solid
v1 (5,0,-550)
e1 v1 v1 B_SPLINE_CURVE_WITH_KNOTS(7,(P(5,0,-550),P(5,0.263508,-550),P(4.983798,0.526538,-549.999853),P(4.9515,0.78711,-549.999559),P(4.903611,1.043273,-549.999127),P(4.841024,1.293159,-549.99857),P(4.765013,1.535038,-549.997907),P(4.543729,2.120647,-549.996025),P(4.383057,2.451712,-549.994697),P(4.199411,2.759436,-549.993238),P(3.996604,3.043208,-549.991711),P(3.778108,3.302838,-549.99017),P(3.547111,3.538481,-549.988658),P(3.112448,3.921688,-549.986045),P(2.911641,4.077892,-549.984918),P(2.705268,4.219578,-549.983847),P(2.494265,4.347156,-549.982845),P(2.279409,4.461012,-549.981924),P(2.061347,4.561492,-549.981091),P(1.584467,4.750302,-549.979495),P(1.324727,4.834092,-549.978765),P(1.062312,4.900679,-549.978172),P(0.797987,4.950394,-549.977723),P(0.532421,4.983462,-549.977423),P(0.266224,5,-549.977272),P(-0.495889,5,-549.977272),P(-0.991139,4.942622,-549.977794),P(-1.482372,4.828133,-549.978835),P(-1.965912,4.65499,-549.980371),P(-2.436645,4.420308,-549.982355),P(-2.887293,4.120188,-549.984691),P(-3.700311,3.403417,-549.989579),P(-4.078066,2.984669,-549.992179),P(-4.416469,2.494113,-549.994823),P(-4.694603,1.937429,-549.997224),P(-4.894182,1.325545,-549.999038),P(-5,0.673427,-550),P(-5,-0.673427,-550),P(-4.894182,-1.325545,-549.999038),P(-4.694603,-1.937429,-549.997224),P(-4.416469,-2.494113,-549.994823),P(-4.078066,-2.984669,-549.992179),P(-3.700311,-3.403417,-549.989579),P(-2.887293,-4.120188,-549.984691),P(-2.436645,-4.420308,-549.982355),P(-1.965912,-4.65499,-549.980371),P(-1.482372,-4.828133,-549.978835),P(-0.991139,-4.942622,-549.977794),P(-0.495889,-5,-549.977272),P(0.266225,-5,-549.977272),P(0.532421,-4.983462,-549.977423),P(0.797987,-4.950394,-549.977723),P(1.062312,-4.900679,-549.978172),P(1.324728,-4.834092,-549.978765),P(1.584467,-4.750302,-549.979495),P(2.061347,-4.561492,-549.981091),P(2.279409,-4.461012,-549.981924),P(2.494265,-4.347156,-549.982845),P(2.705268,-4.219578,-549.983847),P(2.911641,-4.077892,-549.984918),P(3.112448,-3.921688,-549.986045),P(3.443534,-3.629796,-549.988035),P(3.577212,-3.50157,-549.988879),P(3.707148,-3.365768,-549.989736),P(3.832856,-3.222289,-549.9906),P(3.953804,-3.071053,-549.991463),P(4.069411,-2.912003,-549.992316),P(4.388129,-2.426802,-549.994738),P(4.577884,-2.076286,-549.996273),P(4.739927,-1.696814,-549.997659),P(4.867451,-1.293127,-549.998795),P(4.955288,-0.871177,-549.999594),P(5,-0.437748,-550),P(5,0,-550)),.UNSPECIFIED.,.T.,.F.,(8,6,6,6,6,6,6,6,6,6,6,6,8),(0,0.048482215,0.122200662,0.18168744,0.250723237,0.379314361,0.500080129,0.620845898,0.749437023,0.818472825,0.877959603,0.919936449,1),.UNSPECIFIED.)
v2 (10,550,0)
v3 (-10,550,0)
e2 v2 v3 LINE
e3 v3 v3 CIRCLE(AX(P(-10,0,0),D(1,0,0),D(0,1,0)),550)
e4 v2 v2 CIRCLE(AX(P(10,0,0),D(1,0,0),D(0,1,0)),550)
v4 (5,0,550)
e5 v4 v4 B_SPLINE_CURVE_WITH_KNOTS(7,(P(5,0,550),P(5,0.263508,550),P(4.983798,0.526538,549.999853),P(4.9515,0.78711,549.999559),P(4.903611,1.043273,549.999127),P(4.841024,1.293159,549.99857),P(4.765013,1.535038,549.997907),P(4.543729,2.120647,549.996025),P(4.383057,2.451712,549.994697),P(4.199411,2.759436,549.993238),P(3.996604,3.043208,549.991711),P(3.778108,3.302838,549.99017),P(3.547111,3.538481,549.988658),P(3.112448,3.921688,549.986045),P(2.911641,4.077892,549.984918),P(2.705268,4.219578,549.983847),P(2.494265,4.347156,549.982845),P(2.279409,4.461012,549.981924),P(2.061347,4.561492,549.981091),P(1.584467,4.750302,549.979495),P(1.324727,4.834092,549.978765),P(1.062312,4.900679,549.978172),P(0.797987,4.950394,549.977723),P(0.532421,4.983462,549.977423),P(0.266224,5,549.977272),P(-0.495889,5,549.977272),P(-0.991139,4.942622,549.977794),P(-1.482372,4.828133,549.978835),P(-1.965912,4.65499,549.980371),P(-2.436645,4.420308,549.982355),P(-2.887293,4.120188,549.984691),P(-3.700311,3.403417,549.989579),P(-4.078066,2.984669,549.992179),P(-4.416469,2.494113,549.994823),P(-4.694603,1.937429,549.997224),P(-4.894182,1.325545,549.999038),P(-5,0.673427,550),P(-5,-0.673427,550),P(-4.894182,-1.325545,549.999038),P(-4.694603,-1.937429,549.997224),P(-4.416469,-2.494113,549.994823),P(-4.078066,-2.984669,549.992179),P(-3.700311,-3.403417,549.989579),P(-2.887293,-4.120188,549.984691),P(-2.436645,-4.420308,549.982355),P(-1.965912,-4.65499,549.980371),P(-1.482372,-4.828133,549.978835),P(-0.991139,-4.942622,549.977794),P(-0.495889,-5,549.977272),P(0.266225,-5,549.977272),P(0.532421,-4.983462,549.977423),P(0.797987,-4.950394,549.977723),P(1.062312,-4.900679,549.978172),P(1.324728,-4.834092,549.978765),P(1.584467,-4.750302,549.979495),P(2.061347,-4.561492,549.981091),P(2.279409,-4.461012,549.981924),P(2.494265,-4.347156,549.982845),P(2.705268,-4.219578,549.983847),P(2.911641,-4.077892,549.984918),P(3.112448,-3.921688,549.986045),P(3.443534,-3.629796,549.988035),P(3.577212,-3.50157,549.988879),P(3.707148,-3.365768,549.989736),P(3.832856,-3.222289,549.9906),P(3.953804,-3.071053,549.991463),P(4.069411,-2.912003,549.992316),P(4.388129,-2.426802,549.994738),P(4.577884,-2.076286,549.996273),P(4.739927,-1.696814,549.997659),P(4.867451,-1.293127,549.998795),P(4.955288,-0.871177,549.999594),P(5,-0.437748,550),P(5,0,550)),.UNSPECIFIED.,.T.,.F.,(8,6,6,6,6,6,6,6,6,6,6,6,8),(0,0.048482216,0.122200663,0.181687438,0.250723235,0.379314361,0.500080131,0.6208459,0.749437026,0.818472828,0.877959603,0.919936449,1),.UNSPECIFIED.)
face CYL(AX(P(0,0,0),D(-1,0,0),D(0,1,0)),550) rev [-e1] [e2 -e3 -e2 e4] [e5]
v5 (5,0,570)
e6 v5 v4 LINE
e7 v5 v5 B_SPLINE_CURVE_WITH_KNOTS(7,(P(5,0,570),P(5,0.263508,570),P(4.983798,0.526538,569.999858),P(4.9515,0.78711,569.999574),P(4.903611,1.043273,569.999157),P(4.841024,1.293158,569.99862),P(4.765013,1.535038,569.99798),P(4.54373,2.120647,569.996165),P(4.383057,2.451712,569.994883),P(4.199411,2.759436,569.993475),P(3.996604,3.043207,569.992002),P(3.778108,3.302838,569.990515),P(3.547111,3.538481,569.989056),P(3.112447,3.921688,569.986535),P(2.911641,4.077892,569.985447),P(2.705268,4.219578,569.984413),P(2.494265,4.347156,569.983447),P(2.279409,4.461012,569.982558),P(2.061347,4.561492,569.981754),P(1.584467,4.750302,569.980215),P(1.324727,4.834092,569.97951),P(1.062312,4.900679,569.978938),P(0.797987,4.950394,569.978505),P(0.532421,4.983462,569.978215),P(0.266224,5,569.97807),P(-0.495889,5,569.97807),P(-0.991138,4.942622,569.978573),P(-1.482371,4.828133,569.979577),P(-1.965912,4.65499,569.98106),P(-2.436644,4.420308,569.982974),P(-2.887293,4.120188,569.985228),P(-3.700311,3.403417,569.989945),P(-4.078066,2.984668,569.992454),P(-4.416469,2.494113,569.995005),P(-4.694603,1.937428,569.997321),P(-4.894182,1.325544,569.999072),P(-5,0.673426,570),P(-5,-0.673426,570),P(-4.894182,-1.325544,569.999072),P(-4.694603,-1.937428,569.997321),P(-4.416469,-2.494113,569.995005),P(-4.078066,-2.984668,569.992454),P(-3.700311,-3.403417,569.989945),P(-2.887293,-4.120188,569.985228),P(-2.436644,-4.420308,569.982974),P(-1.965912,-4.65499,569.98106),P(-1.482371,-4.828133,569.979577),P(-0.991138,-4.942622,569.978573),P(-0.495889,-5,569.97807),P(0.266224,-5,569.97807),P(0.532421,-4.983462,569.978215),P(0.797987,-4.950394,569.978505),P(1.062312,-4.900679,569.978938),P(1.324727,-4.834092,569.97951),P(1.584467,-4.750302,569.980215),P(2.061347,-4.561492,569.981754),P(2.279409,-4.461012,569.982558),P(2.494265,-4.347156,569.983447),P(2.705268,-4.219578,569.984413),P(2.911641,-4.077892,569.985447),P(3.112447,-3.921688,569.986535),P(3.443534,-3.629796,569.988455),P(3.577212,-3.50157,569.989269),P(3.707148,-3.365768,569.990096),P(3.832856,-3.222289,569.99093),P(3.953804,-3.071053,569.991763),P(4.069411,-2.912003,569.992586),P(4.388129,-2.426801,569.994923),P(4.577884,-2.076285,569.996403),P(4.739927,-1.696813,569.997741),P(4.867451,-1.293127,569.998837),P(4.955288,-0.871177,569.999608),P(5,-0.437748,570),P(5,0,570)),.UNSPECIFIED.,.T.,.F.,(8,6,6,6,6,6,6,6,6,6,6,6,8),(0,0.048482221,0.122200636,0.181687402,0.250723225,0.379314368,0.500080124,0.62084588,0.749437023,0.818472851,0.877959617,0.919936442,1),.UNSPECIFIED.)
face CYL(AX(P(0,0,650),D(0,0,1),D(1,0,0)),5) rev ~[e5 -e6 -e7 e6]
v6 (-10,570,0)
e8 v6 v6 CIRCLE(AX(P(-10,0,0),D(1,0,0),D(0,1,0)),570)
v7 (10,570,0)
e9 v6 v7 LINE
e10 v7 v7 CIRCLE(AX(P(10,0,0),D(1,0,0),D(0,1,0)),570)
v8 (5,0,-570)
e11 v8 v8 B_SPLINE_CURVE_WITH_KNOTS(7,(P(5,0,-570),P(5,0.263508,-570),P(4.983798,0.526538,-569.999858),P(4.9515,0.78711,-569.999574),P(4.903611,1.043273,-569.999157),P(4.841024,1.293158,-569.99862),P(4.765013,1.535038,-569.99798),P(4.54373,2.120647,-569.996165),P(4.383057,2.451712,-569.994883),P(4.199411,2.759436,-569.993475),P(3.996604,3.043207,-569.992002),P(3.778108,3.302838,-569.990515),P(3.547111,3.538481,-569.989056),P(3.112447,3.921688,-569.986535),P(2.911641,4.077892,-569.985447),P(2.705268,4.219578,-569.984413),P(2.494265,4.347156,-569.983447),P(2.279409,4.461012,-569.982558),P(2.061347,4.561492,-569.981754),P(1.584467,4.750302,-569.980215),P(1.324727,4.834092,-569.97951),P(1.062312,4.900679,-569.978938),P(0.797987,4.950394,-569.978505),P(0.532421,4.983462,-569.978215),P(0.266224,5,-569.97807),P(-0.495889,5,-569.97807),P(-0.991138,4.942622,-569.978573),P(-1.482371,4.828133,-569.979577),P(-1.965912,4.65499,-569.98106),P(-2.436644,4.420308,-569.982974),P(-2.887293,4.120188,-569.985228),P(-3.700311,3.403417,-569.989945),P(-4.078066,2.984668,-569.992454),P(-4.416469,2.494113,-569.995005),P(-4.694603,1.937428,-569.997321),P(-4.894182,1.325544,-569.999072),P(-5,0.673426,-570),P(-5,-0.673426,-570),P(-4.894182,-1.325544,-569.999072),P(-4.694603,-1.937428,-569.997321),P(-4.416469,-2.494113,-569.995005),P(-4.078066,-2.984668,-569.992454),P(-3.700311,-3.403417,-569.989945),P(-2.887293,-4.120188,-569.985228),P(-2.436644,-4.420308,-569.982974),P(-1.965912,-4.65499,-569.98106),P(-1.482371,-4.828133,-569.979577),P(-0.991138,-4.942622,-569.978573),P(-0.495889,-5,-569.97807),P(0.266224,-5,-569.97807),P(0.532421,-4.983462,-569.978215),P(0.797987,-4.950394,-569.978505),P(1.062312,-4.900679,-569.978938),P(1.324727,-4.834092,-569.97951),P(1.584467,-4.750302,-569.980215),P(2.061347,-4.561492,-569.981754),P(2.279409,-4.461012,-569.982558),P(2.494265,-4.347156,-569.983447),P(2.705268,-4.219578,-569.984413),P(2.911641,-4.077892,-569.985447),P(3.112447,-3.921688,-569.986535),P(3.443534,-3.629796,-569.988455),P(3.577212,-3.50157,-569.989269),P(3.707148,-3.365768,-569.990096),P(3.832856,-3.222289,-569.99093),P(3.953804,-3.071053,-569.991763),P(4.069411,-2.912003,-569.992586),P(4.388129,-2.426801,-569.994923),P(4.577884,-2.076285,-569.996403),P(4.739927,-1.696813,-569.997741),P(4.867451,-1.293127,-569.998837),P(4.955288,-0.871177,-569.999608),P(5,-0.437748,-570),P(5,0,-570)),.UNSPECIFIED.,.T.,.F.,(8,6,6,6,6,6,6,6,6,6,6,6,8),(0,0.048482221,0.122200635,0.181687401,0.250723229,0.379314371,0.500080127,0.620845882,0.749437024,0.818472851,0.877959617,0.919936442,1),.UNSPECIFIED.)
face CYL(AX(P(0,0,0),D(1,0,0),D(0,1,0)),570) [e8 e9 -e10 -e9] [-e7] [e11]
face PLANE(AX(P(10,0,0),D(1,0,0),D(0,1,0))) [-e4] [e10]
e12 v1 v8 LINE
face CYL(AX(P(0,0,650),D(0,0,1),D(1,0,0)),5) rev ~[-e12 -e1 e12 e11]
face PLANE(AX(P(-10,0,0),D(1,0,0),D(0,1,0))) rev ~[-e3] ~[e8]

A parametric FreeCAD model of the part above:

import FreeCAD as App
import Part
import Sketcher

V = App.Vector
Q = App.Units.Quantity

doc = App.newDocument("Part")
body = doc.addObject("PartDesign::Body", "Body")

sketch1 = body.newObject("Sketcher::SketchObject", "Sketch")
sketch1.AttachmentSupport = (doc.getObject("XY_Plane"), [""])
sketch1.MapMode = "FlatFace"
sketch1.AttachmentOffset = App.Placement(V(0, 0, 650), App.Rotation())
sketch1.addGeometry(Part.Circle(V(0, 0, 0), V(0, 0, 1), 5), False)
sketch1.addConstraint(Sketcher.Constraint("Coincident", 0, 3, -1, 1))
sketch1.addConstraint(Sketcher.Constraint("Diameter", 0, Q("10 mm")))
pad1 = body.newObject("PartDesign::Pad", "Pad")
pad1.Profile = sketch1
pad1.Length = 1500
pad1.Reversed = True
body2 = doc.addObject("PartDesign::Body", "Body001")

sketch2 = body2.newObject("Sketcher::SketchObject", "Sketch001")
sketch2.AttachmentSupport = (doc.getObject("YZ_Plane001"), [""])
sketch2.MapMode = "FlatFace"
sketch2.addGeometry(Part.Circle(V(0, 0, 0), V(0, 0, 1), 570), False)
sketch2.addGeometry(Part.Circle(V(0, 0, 0), V(0, 0, 1), 550), False)
sketch2.addConstraint(Sketcher.Constraint("Coincident", 0, 3, -1, 1))
sketch2.addConstraint(Sketcher.Constraint("Coincident", 1, 3, -1, 1))
sketch2.addConstraint(Sketcher.Constraint("Diameter", 0, Q("1140 mm")))
sketch2.addConstraint(Sketcher.Constraint("Diameter", 1, Q("1100 mm")))
pad2 = body2.newObject("PartDesign::Pad", "Pad001")
pad2.Profile = sketch2
pad2.Length = 20
pad2.Midplane = True
doc.recompute()

boolean = body2.newObject("PartDesign::Boolean", "Boolean")
boolean.Type = "Cut"
boolean.addObjects([body])

doc.recompute()
